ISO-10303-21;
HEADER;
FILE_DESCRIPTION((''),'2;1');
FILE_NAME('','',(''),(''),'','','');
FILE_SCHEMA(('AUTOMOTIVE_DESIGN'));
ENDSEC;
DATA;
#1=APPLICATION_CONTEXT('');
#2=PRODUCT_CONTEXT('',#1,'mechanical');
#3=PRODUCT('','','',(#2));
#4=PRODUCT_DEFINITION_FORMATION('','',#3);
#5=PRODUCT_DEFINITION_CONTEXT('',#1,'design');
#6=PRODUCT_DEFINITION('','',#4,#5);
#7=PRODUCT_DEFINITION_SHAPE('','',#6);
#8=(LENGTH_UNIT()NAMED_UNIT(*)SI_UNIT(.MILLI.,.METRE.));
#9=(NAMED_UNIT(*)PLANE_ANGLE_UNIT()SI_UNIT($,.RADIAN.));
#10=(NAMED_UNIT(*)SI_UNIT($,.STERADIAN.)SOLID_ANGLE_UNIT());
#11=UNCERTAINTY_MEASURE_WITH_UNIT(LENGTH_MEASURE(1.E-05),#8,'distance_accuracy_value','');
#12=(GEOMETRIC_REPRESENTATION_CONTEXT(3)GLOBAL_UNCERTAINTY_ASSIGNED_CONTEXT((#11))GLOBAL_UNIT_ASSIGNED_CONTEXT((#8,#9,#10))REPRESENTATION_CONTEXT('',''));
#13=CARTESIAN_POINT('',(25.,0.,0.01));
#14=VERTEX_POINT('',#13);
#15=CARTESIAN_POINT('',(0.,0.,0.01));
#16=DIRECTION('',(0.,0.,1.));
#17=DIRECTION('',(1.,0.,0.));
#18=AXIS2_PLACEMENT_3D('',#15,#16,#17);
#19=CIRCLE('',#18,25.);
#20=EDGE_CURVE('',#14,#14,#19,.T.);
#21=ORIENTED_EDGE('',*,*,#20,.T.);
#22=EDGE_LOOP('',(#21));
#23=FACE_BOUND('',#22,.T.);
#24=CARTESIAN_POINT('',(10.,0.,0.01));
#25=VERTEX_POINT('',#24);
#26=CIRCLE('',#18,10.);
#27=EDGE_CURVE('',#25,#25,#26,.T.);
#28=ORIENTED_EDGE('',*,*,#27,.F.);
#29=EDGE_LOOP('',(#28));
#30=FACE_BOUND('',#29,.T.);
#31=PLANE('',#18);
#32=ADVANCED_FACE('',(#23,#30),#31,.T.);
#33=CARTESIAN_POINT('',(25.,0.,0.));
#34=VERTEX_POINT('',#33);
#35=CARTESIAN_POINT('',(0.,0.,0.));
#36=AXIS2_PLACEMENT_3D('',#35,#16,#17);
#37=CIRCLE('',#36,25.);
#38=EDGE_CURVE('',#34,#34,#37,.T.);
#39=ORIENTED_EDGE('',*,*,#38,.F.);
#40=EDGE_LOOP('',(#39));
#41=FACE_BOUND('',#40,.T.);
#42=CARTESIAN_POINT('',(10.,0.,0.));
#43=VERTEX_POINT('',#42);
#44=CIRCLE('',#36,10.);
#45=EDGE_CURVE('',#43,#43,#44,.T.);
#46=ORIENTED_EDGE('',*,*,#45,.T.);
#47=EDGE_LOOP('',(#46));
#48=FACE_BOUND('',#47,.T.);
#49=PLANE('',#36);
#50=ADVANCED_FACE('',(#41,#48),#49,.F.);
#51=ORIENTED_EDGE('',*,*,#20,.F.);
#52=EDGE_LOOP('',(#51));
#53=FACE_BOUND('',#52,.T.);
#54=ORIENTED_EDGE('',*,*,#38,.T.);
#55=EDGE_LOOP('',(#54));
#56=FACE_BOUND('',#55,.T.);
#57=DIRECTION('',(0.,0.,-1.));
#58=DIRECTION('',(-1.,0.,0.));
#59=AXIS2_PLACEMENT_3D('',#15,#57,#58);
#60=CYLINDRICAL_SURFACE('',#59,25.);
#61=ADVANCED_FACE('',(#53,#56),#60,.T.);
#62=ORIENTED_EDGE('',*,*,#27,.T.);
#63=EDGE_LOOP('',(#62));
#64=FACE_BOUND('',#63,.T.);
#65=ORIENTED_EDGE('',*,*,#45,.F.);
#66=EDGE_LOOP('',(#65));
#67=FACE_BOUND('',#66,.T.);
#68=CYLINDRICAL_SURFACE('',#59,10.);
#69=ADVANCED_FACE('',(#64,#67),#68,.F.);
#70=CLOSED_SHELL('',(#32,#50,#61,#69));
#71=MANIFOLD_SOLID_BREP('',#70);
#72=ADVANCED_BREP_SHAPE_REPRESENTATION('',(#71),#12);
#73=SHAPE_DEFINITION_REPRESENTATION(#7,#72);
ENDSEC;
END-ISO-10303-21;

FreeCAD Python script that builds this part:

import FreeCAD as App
import Part
import Sketcher

V = App.Vector
Q = App.Units.Quantity

doc = App.newDocument("Part")
body = doc.addObject("PartDesign::Body", "Body")

# Sketch on XY plane
sketch1 = body.newObject("Sketcher::SketchObject", "Sketch")
sketch1.AttachmentSupport = (doc.getObject("XY_Plane"), [""])
sketch1.MapMode = "FlatFace"
sketch1.addGeometry([
    Part.Circle(V(0, 0, 0), V(0, 0, 1), 25),
    Part.Circle(V(0, 0, 0), V(0, 0, 1), 10),
], False)
sketch1.addConstraint([
    Sketcher.Constraint("Coincident", 0, 3, -1, 1),
    Sketcher.Constraint("Coincident", 1, 3, -1, 1),
    Sketcher.Constraint("Diameter", 0, Q("50 mm")),
    Sketcher.Constraint("Diameter", 1, Q("20 mm")),
])
pad1 = body.newObject("PartDesign::Pad", "Pad")
pad1.Profile = sketch1
pad1.Length = 0.01

doc.recompute()
